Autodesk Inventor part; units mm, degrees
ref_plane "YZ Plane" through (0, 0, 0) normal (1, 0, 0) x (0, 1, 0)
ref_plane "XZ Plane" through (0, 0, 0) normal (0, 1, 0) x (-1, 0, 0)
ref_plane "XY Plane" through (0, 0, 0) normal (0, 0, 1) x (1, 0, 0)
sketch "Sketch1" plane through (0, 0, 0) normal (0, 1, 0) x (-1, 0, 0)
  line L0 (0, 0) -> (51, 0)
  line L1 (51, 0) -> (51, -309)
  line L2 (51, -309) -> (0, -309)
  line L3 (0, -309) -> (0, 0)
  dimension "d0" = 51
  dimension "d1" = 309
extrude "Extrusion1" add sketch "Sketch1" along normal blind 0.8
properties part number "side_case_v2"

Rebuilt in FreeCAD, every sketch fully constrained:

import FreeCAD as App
import Part
import Sketcher

V = App.Vector
Q = App.Units.Quantity

doc = App.newDocument("Part")
params = doc.addObject("Spreadsheet::Sheet", "Params")
for row, (alias, value) in enumerate([
    ("sketch1_width", "51 mm"),
    ("sketch1_height", "309 mm"),
    ("pad1_length", "0.8 mm"),
], start=1):
    params.set(f"A{row}", alias)
    params.set(f"B{row}", "=" + value)
    params.setAlias(f"B{row}", alias)

body = doc.addObject("PartDesign::Body", "Body")

# Sketch on XZ plane
sketch1 = body.newObject("Sketcher::SketchObject", "Sketch")
sketch1.AttachmentSupport = (doc.getObject("XZ_Plane"), [""])
sketch1.MapMode = "FlatFace"
sketch1.addGeometry([
    Part.LineSegment(V(-51, 0, 0), V(0, 0, 0)),
    Part.LineSegment(V(0, 0, 0), V(0, -309, 0)),
    Part.LineSegment(V(0, -309, 0), V(-51, -309, 0)),
    Part.LineSegment(V(-51, -309, 0), V(-51, 0, 0)),
], False)
sketch1.addConstraint([
    Sketcher.Constraint("Coincident", 0, 2, 1, 1),
    Sketcher.Constraint("Coincident", 1, 2, 2, 1),
    Sketcher.Constraint("Coincident", 2, 2, 3, 1),
    Sketcher.Constraint("Coincident", 3, 2, 0, 1),
    Sketcher.Constraint("Horizontal", 0),
    Sketcher.Constraint("Vertical", 1),
    Sketcher.Constraint("Horizontal", 2),
    Sketcher.Constraint("Vertical", 3),
    Sketcher.Constraint("Coincident", 0, 2, -1, 1),
    Sketcher.Constraint("DistanceX", 0, 1, 0, 2, Q("51 mm")),
    Sketcher.Constraint("DistanceY", 1, 2, 1, 1, Q("309 mm")),
])
sketch1.setExpression("Constraints[9]", "Params.sketch1_width")
sketch1.setExpression("Constraints[10]", "Params.sketch1_height")
pad1 = body.newObject("PartDesign::Pad", "Pad")
pad1.Profile = sketch1
pad1.setExpression("Length", "Params.pad1_length")
pad1.Reversed = True

doc.recompute()
